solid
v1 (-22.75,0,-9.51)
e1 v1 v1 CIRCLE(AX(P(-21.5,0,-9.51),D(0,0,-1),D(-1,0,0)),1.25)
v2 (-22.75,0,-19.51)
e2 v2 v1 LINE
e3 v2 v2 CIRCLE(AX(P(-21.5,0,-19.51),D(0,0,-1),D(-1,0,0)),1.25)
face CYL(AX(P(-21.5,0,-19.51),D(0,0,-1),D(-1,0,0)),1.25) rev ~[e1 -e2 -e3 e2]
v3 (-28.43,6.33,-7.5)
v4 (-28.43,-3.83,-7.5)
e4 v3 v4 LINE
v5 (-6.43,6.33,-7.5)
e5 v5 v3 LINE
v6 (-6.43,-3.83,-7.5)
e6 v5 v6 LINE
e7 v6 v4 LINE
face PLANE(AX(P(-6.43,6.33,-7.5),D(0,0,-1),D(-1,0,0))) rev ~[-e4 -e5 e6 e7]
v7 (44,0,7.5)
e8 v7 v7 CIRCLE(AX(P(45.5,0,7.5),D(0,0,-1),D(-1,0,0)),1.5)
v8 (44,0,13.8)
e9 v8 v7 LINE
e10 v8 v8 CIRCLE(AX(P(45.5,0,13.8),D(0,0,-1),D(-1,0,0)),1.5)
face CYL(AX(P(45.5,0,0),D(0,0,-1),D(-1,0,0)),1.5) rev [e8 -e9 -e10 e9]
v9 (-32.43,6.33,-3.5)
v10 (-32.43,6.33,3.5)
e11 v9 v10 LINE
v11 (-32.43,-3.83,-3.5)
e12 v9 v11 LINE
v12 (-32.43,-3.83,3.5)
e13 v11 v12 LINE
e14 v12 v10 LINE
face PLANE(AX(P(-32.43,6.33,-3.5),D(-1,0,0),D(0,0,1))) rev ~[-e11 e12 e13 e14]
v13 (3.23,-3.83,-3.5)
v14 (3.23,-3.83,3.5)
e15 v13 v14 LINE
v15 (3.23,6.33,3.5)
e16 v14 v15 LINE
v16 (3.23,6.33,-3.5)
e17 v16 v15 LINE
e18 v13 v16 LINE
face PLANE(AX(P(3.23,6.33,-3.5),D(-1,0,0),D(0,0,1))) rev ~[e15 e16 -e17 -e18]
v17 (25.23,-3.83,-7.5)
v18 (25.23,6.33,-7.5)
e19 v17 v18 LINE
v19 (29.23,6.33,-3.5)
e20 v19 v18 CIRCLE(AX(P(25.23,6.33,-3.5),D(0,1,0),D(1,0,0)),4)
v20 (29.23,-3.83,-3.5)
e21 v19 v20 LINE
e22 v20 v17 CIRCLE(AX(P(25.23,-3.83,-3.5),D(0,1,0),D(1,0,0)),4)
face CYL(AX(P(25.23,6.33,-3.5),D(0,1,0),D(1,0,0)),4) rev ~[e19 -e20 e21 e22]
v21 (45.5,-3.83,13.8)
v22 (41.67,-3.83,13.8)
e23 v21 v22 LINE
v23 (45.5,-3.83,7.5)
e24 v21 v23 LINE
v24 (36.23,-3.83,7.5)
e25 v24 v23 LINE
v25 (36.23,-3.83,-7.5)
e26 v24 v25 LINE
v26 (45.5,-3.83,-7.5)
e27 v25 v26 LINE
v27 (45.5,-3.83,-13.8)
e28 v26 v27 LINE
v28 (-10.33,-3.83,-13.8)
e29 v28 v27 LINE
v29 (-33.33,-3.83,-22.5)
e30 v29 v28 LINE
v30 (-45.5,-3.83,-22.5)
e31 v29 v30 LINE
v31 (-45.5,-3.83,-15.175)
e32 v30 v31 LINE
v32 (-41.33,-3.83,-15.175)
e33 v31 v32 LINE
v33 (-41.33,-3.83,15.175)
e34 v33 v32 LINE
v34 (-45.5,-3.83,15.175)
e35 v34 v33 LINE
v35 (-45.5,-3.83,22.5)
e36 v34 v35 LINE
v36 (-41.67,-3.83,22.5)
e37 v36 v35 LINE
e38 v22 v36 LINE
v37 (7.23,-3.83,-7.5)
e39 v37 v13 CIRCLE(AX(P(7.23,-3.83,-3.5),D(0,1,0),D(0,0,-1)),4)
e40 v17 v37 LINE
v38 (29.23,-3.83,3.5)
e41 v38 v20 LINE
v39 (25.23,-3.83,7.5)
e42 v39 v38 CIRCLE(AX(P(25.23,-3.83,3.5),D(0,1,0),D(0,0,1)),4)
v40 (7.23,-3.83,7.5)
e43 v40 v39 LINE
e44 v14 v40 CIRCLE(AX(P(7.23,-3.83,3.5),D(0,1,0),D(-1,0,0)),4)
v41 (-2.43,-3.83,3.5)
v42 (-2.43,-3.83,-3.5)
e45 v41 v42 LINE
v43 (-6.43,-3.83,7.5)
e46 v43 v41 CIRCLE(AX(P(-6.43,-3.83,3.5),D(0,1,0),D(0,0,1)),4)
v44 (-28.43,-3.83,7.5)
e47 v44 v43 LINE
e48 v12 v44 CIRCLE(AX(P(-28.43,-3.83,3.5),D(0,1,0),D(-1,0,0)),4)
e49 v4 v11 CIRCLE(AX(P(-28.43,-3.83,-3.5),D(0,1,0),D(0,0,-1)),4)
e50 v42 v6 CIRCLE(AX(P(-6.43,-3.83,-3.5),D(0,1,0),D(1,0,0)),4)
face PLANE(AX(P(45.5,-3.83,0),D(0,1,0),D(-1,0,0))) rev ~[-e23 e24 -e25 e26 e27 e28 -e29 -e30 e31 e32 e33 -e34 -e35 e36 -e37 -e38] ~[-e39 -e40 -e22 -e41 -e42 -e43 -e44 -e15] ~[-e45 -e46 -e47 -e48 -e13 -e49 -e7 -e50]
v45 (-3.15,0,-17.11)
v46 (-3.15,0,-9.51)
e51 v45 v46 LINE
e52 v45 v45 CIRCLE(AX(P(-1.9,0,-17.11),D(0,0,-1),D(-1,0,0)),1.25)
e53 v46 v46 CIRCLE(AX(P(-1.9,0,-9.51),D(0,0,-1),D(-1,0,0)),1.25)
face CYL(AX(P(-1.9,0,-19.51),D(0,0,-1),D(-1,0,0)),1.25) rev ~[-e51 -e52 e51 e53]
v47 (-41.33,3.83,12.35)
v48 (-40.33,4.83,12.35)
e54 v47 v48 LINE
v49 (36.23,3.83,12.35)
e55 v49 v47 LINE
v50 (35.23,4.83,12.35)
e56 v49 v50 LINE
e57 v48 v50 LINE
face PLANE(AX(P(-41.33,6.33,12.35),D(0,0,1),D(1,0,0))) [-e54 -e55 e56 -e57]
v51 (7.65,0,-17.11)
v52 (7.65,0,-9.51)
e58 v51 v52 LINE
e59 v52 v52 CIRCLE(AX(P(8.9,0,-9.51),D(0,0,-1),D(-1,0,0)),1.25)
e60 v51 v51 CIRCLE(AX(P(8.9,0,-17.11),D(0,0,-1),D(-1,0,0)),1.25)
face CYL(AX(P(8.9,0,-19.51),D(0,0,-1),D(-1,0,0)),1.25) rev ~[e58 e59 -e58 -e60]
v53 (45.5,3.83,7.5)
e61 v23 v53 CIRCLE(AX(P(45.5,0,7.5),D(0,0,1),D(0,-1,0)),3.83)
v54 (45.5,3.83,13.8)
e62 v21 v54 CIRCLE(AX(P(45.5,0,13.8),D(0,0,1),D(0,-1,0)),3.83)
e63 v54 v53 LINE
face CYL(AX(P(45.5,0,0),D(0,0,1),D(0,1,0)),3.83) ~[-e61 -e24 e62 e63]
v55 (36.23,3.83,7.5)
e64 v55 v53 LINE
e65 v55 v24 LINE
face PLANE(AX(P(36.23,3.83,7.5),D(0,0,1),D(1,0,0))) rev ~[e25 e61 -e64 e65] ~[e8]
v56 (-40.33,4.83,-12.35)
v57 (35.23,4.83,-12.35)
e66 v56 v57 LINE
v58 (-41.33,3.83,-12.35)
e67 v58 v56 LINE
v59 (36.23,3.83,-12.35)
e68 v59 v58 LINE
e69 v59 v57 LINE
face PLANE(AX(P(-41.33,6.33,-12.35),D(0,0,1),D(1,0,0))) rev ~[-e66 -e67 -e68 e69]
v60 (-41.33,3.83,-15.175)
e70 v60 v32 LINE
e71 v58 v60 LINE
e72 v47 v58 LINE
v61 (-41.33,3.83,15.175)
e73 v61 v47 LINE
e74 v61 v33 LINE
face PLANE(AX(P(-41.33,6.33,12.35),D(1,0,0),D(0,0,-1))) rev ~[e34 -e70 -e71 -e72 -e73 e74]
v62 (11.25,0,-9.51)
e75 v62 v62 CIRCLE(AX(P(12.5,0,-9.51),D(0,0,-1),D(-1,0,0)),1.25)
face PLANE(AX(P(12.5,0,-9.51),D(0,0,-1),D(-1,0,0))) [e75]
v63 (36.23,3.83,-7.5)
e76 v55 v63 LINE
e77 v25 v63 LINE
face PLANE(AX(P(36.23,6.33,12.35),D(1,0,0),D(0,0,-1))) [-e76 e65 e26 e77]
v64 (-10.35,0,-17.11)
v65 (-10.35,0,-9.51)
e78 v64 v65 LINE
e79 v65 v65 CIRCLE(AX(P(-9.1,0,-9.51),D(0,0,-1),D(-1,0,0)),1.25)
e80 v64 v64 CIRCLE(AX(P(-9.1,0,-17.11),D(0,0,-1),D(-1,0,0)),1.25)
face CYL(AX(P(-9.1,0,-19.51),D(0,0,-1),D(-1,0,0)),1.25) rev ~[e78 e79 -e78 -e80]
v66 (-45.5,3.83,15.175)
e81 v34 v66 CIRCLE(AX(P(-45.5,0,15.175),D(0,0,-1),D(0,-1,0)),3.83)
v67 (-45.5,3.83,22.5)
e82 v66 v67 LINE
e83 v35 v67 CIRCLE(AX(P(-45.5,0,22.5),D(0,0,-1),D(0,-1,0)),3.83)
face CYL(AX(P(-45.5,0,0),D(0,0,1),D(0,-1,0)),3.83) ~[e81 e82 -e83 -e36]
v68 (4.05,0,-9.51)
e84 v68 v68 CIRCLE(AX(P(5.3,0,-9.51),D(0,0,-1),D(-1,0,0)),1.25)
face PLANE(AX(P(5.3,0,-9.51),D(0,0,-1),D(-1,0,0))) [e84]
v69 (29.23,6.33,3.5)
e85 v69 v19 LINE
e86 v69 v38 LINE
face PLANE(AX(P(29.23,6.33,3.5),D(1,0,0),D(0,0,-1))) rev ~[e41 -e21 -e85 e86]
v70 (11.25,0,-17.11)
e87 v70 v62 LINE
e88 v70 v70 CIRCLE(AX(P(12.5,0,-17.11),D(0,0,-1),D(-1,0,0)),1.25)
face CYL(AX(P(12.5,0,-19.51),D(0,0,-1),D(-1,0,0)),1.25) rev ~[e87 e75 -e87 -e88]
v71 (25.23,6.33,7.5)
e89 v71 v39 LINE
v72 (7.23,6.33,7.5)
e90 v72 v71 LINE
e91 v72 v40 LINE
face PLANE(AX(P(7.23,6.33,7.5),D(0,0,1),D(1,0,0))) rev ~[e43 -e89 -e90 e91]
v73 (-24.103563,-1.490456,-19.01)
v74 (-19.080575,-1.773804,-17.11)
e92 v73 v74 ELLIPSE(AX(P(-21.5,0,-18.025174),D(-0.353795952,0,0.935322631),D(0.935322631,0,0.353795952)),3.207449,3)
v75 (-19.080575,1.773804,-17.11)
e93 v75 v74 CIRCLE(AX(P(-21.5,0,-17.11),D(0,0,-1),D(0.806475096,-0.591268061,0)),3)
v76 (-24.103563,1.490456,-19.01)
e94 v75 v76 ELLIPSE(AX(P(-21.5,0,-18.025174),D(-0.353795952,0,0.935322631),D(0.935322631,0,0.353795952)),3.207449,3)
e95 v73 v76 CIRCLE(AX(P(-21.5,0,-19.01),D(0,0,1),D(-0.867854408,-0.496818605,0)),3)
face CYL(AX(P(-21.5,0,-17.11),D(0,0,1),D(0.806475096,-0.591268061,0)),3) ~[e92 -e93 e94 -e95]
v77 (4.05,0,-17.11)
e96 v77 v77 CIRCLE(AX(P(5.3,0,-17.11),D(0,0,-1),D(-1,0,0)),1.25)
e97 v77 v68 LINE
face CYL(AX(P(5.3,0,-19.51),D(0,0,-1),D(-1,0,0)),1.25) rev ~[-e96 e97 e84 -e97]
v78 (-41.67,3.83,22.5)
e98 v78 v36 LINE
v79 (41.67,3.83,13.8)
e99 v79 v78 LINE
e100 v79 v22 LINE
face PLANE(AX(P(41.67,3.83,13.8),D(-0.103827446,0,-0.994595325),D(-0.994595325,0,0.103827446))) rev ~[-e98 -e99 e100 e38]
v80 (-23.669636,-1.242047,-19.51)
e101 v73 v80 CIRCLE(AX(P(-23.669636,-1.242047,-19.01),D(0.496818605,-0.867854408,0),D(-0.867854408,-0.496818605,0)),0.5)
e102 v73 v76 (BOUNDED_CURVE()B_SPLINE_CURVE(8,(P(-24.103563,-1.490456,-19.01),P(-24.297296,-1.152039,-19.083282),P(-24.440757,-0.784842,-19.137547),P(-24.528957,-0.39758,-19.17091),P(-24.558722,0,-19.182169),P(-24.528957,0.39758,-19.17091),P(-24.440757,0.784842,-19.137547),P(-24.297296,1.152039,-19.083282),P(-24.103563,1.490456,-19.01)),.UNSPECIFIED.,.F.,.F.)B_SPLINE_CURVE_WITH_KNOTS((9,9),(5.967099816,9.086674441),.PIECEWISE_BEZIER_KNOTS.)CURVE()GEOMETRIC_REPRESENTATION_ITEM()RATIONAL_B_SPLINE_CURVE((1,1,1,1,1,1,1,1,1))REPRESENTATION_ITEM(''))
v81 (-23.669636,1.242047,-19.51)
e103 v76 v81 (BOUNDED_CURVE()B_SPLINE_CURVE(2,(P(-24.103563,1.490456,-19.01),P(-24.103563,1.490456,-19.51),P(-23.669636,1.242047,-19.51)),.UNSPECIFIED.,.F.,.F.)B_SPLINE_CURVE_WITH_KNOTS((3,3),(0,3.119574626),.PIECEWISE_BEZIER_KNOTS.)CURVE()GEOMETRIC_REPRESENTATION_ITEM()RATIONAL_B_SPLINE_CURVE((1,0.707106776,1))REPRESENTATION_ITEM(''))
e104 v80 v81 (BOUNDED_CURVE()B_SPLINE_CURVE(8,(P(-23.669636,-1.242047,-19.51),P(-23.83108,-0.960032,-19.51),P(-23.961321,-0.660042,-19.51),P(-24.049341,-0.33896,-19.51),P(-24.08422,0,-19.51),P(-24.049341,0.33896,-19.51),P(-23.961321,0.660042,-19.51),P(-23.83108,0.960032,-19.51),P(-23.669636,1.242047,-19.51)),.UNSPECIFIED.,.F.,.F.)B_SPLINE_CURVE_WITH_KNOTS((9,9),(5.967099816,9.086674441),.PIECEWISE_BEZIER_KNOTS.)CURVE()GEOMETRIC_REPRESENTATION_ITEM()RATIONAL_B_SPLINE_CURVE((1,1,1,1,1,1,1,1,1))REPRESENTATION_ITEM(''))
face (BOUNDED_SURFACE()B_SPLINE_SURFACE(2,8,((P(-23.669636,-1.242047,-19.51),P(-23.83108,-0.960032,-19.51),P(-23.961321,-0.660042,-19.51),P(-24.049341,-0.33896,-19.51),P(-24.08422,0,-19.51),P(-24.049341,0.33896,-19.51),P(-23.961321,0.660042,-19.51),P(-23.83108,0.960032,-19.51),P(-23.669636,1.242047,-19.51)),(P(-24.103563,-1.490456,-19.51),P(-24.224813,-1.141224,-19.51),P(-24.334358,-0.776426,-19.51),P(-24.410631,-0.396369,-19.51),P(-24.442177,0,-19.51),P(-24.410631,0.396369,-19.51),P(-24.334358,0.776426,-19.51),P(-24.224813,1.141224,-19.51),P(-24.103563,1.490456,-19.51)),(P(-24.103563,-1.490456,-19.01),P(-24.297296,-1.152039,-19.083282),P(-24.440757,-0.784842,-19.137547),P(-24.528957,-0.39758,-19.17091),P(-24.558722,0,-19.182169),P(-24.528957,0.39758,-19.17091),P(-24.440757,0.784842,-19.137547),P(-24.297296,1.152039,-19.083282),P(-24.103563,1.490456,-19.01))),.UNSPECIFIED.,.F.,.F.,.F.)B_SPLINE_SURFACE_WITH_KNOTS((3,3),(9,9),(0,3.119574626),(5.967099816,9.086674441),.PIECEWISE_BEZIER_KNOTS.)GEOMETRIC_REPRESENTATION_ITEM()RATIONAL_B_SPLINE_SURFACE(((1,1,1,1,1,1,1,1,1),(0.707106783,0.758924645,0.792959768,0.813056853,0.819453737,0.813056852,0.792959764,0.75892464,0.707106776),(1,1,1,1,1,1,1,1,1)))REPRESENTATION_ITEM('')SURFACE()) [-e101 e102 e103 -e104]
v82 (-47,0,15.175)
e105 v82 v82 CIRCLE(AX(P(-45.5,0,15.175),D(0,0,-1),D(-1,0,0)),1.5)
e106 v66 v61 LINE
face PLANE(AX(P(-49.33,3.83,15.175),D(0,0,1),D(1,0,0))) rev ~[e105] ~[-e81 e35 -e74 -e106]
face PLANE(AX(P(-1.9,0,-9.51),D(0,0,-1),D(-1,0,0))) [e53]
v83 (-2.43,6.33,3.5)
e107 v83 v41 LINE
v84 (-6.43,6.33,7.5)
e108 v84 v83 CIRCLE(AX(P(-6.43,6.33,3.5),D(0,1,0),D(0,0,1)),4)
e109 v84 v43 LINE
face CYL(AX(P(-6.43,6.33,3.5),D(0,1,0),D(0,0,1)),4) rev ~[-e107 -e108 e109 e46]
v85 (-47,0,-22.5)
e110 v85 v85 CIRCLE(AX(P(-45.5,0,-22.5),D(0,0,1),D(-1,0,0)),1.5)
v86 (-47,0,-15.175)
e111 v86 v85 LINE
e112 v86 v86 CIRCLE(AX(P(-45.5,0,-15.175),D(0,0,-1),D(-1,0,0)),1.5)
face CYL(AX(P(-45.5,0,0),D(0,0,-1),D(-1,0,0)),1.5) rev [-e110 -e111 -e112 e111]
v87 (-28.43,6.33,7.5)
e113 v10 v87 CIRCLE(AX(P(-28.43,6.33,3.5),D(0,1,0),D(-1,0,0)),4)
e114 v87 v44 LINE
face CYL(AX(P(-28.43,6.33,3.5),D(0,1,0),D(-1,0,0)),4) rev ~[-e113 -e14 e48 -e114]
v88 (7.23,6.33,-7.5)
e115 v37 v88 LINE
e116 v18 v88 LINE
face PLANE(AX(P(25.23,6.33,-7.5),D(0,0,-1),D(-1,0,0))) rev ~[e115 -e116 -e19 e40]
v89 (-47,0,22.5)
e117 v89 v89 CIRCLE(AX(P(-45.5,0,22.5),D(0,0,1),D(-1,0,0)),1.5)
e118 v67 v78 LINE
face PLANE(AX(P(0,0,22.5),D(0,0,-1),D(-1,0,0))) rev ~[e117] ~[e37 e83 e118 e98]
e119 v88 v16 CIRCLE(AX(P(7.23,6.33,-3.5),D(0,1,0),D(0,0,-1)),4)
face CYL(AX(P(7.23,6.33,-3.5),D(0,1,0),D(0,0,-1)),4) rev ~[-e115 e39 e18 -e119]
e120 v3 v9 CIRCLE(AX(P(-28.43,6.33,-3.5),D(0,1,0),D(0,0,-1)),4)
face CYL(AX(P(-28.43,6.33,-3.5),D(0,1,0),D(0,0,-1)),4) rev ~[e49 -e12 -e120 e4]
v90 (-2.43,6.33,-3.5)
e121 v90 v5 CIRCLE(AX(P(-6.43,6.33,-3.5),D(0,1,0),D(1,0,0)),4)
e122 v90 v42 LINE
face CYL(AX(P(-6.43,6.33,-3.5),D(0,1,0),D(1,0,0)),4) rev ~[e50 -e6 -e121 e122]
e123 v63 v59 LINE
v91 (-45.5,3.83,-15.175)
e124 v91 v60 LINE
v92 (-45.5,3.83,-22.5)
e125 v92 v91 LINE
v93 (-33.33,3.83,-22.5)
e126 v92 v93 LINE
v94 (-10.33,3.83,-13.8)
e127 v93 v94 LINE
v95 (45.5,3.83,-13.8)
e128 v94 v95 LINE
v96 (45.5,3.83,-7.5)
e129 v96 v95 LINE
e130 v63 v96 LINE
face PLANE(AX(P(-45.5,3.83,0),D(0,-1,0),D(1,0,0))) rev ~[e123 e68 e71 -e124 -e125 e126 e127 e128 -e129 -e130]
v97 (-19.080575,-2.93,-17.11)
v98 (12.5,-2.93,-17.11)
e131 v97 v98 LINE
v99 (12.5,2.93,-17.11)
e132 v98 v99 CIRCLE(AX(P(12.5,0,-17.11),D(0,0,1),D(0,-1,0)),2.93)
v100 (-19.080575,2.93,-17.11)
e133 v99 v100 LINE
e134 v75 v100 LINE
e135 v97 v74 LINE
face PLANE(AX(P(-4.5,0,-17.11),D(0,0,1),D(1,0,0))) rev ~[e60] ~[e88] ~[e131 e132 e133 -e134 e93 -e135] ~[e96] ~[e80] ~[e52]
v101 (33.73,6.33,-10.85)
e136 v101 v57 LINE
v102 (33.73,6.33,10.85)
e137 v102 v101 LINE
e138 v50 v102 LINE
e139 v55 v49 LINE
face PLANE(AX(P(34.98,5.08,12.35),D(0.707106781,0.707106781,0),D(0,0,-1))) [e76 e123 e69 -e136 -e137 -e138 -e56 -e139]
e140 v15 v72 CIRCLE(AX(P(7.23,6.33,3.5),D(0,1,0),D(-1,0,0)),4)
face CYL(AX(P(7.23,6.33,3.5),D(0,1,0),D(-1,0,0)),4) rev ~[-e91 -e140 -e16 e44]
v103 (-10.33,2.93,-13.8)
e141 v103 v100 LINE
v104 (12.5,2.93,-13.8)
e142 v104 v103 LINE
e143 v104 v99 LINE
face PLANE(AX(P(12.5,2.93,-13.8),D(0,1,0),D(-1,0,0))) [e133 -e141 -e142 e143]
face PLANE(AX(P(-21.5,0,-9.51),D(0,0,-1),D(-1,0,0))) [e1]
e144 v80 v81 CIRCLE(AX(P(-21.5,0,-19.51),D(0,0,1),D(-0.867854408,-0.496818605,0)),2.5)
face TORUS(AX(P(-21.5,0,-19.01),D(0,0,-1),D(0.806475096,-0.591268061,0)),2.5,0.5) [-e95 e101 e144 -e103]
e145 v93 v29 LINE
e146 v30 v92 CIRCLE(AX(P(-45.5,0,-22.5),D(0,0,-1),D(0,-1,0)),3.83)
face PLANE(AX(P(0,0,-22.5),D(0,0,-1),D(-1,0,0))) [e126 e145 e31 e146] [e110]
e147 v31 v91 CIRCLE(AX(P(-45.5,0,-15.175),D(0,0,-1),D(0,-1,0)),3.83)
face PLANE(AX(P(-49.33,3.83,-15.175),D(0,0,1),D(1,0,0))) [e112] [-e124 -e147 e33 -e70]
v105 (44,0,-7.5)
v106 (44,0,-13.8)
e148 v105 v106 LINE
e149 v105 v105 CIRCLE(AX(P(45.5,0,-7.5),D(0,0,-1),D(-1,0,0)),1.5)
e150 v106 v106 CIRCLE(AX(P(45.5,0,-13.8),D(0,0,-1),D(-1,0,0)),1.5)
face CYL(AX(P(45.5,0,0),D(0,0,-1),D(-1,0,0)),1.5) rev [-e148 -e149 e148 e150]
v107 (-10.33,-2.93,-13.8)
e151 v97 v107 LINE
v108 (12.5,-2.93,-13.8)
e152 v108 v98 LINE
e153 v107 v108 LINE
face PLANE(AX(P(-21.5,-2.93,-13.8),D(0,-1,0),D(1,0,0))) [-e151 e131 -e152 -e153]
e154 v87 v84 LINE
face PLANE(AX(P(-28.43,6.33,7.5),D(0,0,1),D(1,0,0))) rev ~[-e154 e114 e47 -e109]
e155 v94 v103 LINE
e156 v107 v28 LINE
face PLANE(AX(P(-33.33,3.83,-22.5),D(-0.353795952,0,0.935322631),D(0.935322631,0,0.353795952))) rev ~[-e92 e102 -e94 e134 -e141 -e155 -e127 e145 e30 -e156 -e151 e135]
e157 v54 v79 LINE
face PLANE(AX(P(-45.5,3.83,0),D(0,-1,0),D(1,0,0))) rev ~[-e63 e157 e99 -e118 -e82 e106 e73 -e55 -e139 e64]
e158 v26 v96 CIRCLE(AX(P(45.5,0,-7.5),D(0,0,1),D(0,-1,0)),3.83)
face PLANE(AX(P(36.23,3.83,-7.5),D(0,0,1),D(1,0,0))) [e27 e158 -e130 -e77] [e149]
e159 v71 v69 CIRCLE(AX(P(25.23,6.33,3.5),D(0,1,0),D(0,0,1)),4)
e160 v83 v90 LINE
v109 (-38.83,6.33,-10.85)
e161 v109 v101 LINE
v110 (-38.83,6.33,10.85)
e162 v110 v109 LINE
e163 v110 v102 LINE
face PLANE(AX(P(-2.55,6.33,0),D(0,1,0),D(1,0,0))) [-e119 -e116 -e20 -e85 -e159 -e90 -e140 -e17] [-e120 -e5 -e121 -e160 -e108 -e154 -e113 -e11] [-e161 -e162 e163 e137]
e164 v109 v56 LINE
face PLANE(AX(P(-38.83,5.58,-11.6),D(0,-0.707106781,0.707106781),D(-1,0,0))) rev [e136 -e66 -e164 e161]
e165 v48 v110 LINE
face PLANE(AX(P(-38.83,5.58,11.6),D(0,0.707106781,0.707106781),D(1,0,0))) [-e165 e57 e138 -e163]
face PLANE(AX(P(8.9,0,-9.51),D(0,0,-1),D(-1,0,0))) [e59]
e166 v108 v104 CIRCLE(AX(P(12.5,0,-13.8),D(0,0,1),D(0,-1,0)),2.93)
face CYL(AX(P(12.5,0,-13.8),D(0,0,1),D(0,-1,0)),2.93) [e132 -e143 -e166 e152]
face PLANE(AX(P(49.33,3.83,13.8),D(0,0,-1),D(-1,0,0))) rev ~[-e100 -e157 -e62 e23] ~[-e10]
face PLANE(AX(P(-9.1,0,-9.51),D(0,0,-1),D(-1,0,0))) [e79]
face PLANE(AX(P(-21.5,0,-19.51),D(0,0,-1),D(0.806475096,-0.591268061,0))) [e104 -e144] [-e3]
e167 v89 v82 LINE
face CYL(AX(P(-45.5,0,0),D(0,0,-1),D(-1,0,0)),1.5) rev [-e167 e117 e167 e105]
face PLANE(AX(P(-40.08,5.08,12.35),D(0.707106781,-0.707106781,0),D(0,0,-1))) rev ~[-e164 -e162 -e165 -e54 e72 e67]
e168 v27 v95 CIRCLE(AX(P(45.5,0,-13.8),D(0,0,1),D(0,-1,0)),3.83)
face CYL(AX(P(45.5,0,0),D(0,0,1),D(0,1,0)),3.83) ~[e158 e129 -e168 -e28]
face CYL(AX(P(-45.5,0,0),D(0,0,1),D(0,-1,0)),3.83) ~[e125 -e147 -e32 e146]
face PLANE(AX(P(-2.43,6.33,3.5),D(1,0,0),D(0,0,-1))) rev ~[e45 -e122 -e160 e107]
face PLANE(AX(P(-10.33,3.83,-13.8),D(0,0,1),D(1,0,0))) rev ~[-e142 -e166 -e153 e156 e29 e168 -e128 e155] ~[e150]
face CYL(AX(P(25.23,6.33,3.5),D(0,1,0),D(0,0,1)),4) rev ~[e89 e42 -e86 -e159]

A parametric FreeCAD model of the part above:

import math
import FreeCAD as App
import Part
import Sketcher
from FreeCAD import Vector
Q = App.Units.Quantity


def edges_at(feature, points):
    """Names of the edges that pass closest to the given points."""
    edges = feature.Shape.Edges
    near = lambda p: min(range(len(edges)), key=lambda i: edges[i].distToShape(Part.Vertex(*p))[0])
    return sorted({f"Edge{near(p) + 1}" for p in points})


def add_polygon(sketch, points):
    """Adds a closed chain of lines whose ends are joined by coincident constraints."""
    first, n = sketch.GeometryCount, len(points)
    for a, b in zip(points, points[1:] + points[:1]):
        sketch.addGeometry(Part.LineSegment(App.Vector(*a, 0), App.Vector(*b, 0)), False)
    for i in range(n):
        sketch.addConstraint(Sketcher.Constraint("Coincident", first + i, 2, first + (i + 1) % n, 1))

doc = App.newDocument("Part")
params = doc.addObject("Spreadsheet::Sheet", "Params")
for row, (alias, value) in enumerate([
    ("sketch1_diameter", "3 mm"),
    ("sketch1_width", "91 mm"),
    ("sketch1_radius", "3.83 mm"),
    ("pad1_length", "45 mm"),
    ("sketch2_radius", "4 mm"),
    ("sketch2_width", "91 mm"),
    ("sketch2_width2", "22 mm"),
    ("sketch2_width3", "18 mm"),
    ("sketch2_width4", "8 mm"),
    ("sketch3_radius", "4 mm"),
    ("sketch3_width", "22 mm"),
    ("sketch3_width2", "18 mm"),
    ("sketch3_height", "7 mm"),
    ("sketch3_height2", "24.7 mm"),
    ("pad2_length", "6.33 mm"),
    ("chamfer_size", "2.5 mm"),
    ("chamfer2_size", "1.5 mm"),
    ("sketch4_width", "34 mm"),
    ("sketch4_radius", "2.93 mm"),
    ("pad3_length", "3.31 mm"),
    ("sketch5_diameter", "6 mm"),
    ("pad4_length", "2.4 mm"),
    ("fillet_radius", "0.5 mm"),
    ("sketch6_diameter", "2.5 mm"),
    ("pocket2_length", "10 mm"),
], start=1):
    params.set(f"A{row}", alias)
    params.set(f"B{row}", "=" + value)
    params.setAlias(f"B{row}", alias)

body = doc.addObject("PartDesign::Body", "Body")

# Sketch on XY plane
sketch1 = doc.addObject("Sketcher::SketchObject", "Sketch")
body.addObject(sketch1)
sketch1.AttachmentSupport = (doc.XY_Plane, [""])
sketch1.MapMode = "FlatFace"
sketch1.addGeometry([
    Part.LineSegment(Vector(45.5, 3.8, 0), Vector(-45.5, 3.8, 0)),  # 0
    Part.ArcOfCircle(Part.Circle(Vector(-45.5, 0, 0), Vector(0, 0, 1), 3.8), math.radians(90), math.radians(270)),  # 1
    Part.LineSegment(Vector(-45.5, -3.8, 0), Vector(45.5, -3.8, 0)),  # 2
    Part.ArcOfCircle(Part.Circle(Vector(45.5, 0, 0), Vector(0, 0, 1), 3.8), math.radians(-90), math.radians(90)),  # 3
    Part.Circle(Vector(45.5, 0, 0), Vector(0, 0, 1), 1.5),  # 4
    Part.Circle(Vector(-45.5, 0, 0), Vector(0, 0, 1), 1.5),  # 5
], False)
sketch1.addConstraint([
    Sketcher.Constraint("Tangent", 0, 2, 1, 1),
    Sketcher.Constraint("Tangent", 1, 2, 2, 1),
    Sketcher.Constraint("Tangent", 2, 2, 3, 1),
    Sketcher.Constraint("Tangent", 3, 2, 0, 1),
    Sketcher.Constraint("Horizontal", 0),
    Sketcher.Constraint("Horizontal", 2),
    Sketcher.Constraint("Coincident", 4, 3, 3, 3),
    Sketcher.Constraint("Coincident", 5, 3, 1, 3),
    Sketcher.Constraint("Equal", 4, 5),
    Sketcher.Constraint("Symmetric", 1, 3, 3, 3, -1, 1),
    Sketcher.Constraint("Diameter", 4, Q("3 mm")),
    Sketcher.Constraint("DistanceX", 0, 2, 0, 1, Q("91 mm")),
    Sketcher.Constraint("Radius", 1, Q("3.83 mm")),
])
sketch1.setExpression("Constraints[10]", "Params.sketch1_diameter")
sketch1.setExpression("Constraints[11]", "Params.sketch1_width")
sketch1.setExpression("Constraints[12]", "Params.sketch1_radius")
pad1 = doc.addObject("PartDesign::Pad", "Pad")
body.addObject(pad1)
pad1.Profile = sketch1
pad1.setExpression("Length", "Params.pad1_length")
pad1.Midplane = True

# Sketch on XZ plane
sketch2 = doc.addObject("Sketcher::SketchObject", "Sketch001")
body.addObject(sketch2)
sketch2.AttachmentSupport = (doc.XZ_Plane, [""])
sketch2.MapMode = "FlatFace"
sketch2.AttachmentOffset = App.Placement(Vector(0, 0, -3.83), App.Rotation())
add_polygon(sketch2, [(-10.3, -13.8), (49.3, -13.8), (49.3, -22.5), (-33.3, -22.5)])  # lines 0-3
add_polygon(sketch2, [(41.7, 13.8), (-41.7, 22.5), (49.3, 22.5), (49.3, 13.8)])  # lines 4-7
sketch2.addGeometry(Part.LineSegment(Vector(-6.4, -7.5, 0), Vector(-28.4, -7.5, 0)), False)  # 8
sketch2.addGeometry(Part.ArcOfCircle(Part.Circle(Vector(-28.4, -3.5, 0), Vector(0, 0, 1), 4), math.radians(180), math.radians(270)), False)  # 9
sketch2.addGeometry(Part.LineSegment(Vector(-32.4, -3.5, 0), Vector(-32.4, 3.5, 0)), False)  # 10
sketch2.addGeometry(Part.ArcOfCircle(Part.Circle(Vector(-28.4, 3.5, 0), Vector(0, 0, 1), 4), math.radians(90), math.radians(180)), False)  # 11
sketch2.addGeometry(Part.LineSegment(Vector(-28.4, 7.5, 0), Vector(-6.4, 7.5, 0)), False)  # 12
sketch2.addGeometry(Part.ArcOfCircle(Part.Circle(Vector(-6.4, 3.5, 0), Vector(0, 0, 1), 4), math.radians(0), math.radians(90)), False)  # 13
sketch2.addGeometry(Part.LineSegment(Vector(-2.4, 3.5, 0), Vector(-2.4, -3.5, 0)), False)  # 14
sketch2.addGeometry(Part.ArcOfCircle(Part.Circle(Vector(-6.4, -3.5, 0), Vector(0, 0, 1), 4), math.radians(-90), math.radians(0)), False)  # 15
sketch2.addGeometry(Part.LineSegment(Vector(25.2, -7.5, 0), Vector(7.2, -7.5, 0)), False)  # 16
sketch2.addGeometry(Part.ArcOfCircle(Part.Circle(Vector(7.2, -3.5, 0), Vector(0, 0, 1), 4), math.radians(180), math.radians(270)), False)  # 17
sketch2.addGeometry(Part.LineSegment(Vector(3.2, -3.5, 0), Vector(3.2, 3.5, 0)), False)  # 18
sketch2.addGeometry(Part.ArcOfCircle(Part.Circle(Vector(7.2, 3.5, 0), Vector(0, 0, 1), 4), math.radians(90), math.radians(180)), False)  # 19
sketch2.addGeometry(Part.LineSegment(Vector(7.2, 7.5, 0), Vector(25.2, 7.5, 0)), False)  # 20
sketch2.addGeometry(Part.ArcOfCircle(Part.Circle(Vector(25.2, 3.5, 0), Vector(0, 0, 1), 4), math.radians(0), math.radians(90)), False)  # 21
sketch2.addGeometry(Part.LineSegment(Vector(29.2, 3.5, 0), Vector(29.2, -3.5, 0)), False)  # 22
sketch2.addGeometry(Part.ArcOfCircle(Part.Circle(Vector(25.2, -3.5, 0), Vector(0, 0, 1), 4), math.radians(-90), math.radians(0)), False)  # 23
add_polygon(sketch2, [(-49.3, -15.2), (-49.3, 15.2), (-41.3, 15.2), (-41.3, -15.2)])  # lines 24-27
add_polygon(sketch2, [(36.2, -7.5), (36.2, 7.5), (49.3, 7.5), (49.3, -7.5)])  # lines 28-31
sketch2.addConstraint([
    Sketcher.Constraint("Tangent", 8, 2, 9, 2),
    Sketcher.Constraint("Tangent", 9, 1, 10, 1),
    Sketcher.Constraint("Tangent", 10, 2, 11, 2),
    Sketcher.Constraint("Tangent", 11, 1, 12, 1),
    Sketcher.Constraint("Tangent", 12, 2, 13, 2),
    Sketcher.Constraint("Tangent", 13, 1, 14, 1),
    Sketcher.Constraint("Tangent", 14, 2, 15, 2),
    Sketcher.Constraint("Tangent", 15, 1, 8, 1),
    Sketcher.Constraint("Tangent", 16, 2, 17, 2),
    Sketcher.Constraint("Tangent", 17, 1, 18, 1),
    Sketcher.Constraint("Tangent", 18, 2, 19, 2),
    Sketcher.Constraint("Tangent", 19, 1, 20, 1),
    Sketcher.Constraint("Tangent", 20, 2, 21, 2),
    Sketcher.Constraint("Tangent", 21, 1, 22, 1),
    Sketcher.Constraint("Tangent", 22, 2, 23, 2),
    Sketcher.Constraint("Tangent", 23, 1, 16, 1),
    Sketcher.Constraint("Horizontal", 0),
    Sketcher.Constraint("Vertical", 1),
    Sketcher.Constraint("Horizontal", 2),
    Sketcher.Constraint("Horizontal", 5),
    Sketcher.Constraint("Vertical", 6),
    Sketcher.Constraint("Horizontal", 7),
    Sketcher.Constraint("Horizontal", 8),
    Sketcher.Constraint("Vertical", 10),
    Sketcher.Constraint("Horizontal", 12),
    Sketcher.Constraint("Vertical", 14),
    Sketcher.Constraint("Horizontal", 16),
    Sketcher.Constraint("Vertical", 18),
    Sketcher.Constraint("Horizontal", 20),
    Sketcher.Constraint("Vertical", 22),
    Sketcher.Constraint("Vertical", 24),
    Sketcher.Constraint("Horizontal", 25),
    Sketcher.Constraint("Vertical", 26),
    Sketcher.Constraint("Horizontal", 27),
    Sketcher.Constraint("Vertical", 28),
    Sketcher.Constraint("Horizontal", 29),
    Sketcher.Constraint("Vertical", 30),
    Sketcher.Constraint("Horizontal", 31),
    Sketcher.Constraint("Equal", 9, 11),
    Sketcher.Constraint("Equal", 11, 13),
    Sketcher.Constraint("Equal", 13, 15),
    Sketcher.Constraint("Equal", 15, 17),
    Sketcher.Constraint("Equal", 17, 19),
    Sketcher.Constraint("Equal", 19, 21),
    Sketcher.Constraint("Equal", 21, 23),
    Sketcher.Constraint("Symmetric", 1, 2, 5, 2, -1),
    Sketcher.Constraint("Horizontal", 15, 3, 17, 3),
    Sketcher.Constraint("Horizontal", 13, 3, 19, 3),
    Sketcher.Constraint("Horizontal", 20, 2, 28, 2),
    Sketcher.Constraint("Horizontal", 23, 1, 30, 2),
    Sketcher.Constraint("Vertical", 6, 2, 29, 2),
    Sketcher.Constraint("Equal", 1, 6),
    Sketcher.Constraint("Radius", 9, Q("4 mm")),
    Sketcher.Constraint("DistanceX", 5, 1, 5, 2, Q("91 mm")),
    Sketcher.Constraint("DistanceX", 8, 2, 8, 1, Q("22 mm")),
    Sketcher.Constraint("DistanceX", 16, 2, 16, 1, Q("18 mm")),
    Sketcher.Constraint("DistanceX", 25, 1, 25, 2, Q("8 mm")),
    Sketcher.Constraint("DistanceY", 10, 1, 10, 2, Q("7 mm")),
    Sketcher.Constraint("DistanceX", 29, 1, 29, 2, Q("13.1 mm")),
    Sketcher.Constraint("DistanceY", 1, 2, 1, 1, Q("8.7 mm")),
    Sketcher.Constraint("DistanceY", 1, 2, 23, 3, Q("19 mm")),
    Sketcher.Constraint("DistanceX", 2, 2, 3, 2, Q("23 mm")),
    Sketcher.Constraint("DistanceY", 11, 3, 4, 2, Q("19 mm")),
    Sketcher.Constraint("DistanceX", 26, 2, 2, 2, Q("8 mm")),
    Sketcher.Constraint("DistanceX", 21, 1, 28, 2, Q("7 mm")),
    Sketcher.Constraint("DistanceX", 0, 1, 0, 2, Q("59.66 mm")),
    Sketcher.Constraint("DistanceX", 7, 2, 7, 1, Q("7.66 mm")),
    Sketcher.Constraint("DistanceY", 24, 1, 24, 2, Q("30.35 mm")),
    Sketcher.Constraint("DistanceX", 2, 2, 9, 3, Q("4.9 mm")),
    Sketcher.Constraint("DistanceX", 9, 3, -1, 1, Q("28.43 mm")),
    Sketcher.Constraint("DistanceY", -1, 1, 24, 2, Q("15.175 mm")),
])
sketch2.setExpression("Constraints[68]", "Params.sketch2_radius")
sketch2.setExpression("Constraints[69]", "Params.sketch2_width")
sketch2.setExpression("Constraints[70]", "Params.sketch2_width2")
sketch2.setExpression("Constraints[71]", "Params.sketch2_width3")
sketch2.setExpression("Constraints[72]", "Params.sketch2_width4")
pocket1 = doc.addObject("PartDesign::Pocket", "Pocket")
body.addObject(pocket1)
pocket1.Profile = sketch2
pocket1.Type = "ThroughAll"
pocket1.Reversed = True

# Sketch on XZ plane
sketch3 = doc.addObject("Sketcher::SketchObject", "Sketch002")
body.addObject(sketch3)
sketch3.AttachmentSupport = (doc.XZ_Plane, [""])
sketch3.MapMode = "FlatFace"
sketch3.AttachmentOffset = App.Placement(Vector(0, 0, -6.33), App.Rotation())
add_polygon(sketch3, [(-41.3, -12.3), (-41.3, 12.3), (36.2, 12.3), (36.2, -12.3)])  # lines 0-3
sketch3.addGeometry(Part.ArcOfCircle(Part.Circle(Vector(-28.4, 3.5, 0), Vector(0, 0, 1), 4), math.radians(90), math.radians(180)), False)  # 4
sketch3.addGeometry(Part.LineSegment(Vector(-32.4, 3.5, 0), Vector(-32.4, -3.5, 0)), False)  # 5
sketch3.addGeometry(Part.ArcOfCircle(Part.Circle(Vector(-28.4, -3.5, 0), Vector(0, 0, 1), 4), math.radians(180), math.radians(270)), False)  # 6
sketch3.addGeometry(Part.LineSegment(Vector(-28.4, -7.5, 0), Vector(-6.4, -7.5, 0)), False)  # 7
sketch3.addGeometry(Part.ArcOfCircle(Part.Circle(Vector(-6.4, -3.5, 0), Vector(0, 0, 1), 4), math.radians(-90), math.radians(0)), False)  # 8
sketch3.addGeometry(Part.LineSegment(Vector(-2.4, -3.5, 0), Vector(-2.4, 3.5, 0)), False)  # 9
sketch3.addGeometry(Part.ArcOfCircle(Part.Circle(Vector(-6.4, 3.5, 0), Vector(0, 0, 1), 4), math.radians(0), math.radians(90)), False)  # 10
sketch3.addGeometry(Part.LineSegment(Vector(-6.4, 7.5, 0), Vector(-28.4, 7.5, 0)), False)  # 11
sketch3.addGeometry(Part.ArcOfCircle(Part.Circle(Vector(7.2, 3.5, 0), Vector(0, 0, 1), 4), math.radians(90), math.radians(180)), False)  # 12
sketch3.addGeometry(Part.LineSegment(Vector(3.2, 3.5, 0), Vector(3.2, -3.5, 0)), False)  # 13
sketch3.addGeometry(Part.ArcOfCircle(Part.Circle(Vector(7.2, -3.5, 0), Vector(0, 0, 1), 4), math.radians(180), math.radians(270)), False)  # 14
sketch3.addGeometry(Part.LineSegment(Vector(7.2, -7.5, 0), Vector(25.2, -7.5, 0)), False)  # 15
sketch3.addGeometry(Part.ArcOfCircle(Part.Circle(Vector(25.2, -3.5, 0), Vector(0, 0, 1), 4), math.radians(-90), math.radians(0)), False)  # 16
sketch3.addGeometry(Part.LineSegment(Vector(29.2, -3.5, 0), Vector(29.2, 3.5, 0)), False)  # 17
sketch3.addGeometry(Part.ArcOfCircle(Part.Circle(Vector(25.2, 3.5, 0), Vector(0, 0, 1), 4), math.radians(0), math.radians(90)), False)  # 18
sketch3.addGeometry(Part.LineSegment(Vector(25.2, 7.5, 0), Vector(7.2, 7.5, 0)), False)  # 19
sketch3.addConstraint([
    Sketcher.Constraint("Tangent", 4, 2, 5, 1),
    Sketcher.Constraint("Tangent", 5, 2, 6, 1),
    Sketcher.Constraint("Tangent", 6, 2, 7, 1),
    Sketcher.Constraint("Tangent", 7, 2, 8, 1),
    Sketcher.Constraint("Tangent", 8, 2, 9, 1),
    Sketcher.Constraint("Tangent", 9, 2, 10, 1),
    Sketcher.Constraint("Tangent", 10, 2, 11, 1),
    Sketcher.Constraint("Tangent", 11, 2, 4, 1),
    Sketcher.Constraint("Tangent", 12, 2, 13, 1),
    Sketcher.Constraint("Tangent", 13, 2, 14, 1),
    Sketcher.Constraint("Tangent", 14, 2, 15, 1),
    Sketcher.Constraint("Tangent", 15, 2, 16, 1),
    Sketcher.Constraint("Tangent", 16, 2, 17, 1),
    Sketcher.Constraint("Tangent", 17, 2, 18, 1),
    Sketcher.Constraint("Tangent", 18, 2, 19, 1),
    Sketcher.Constraint("Tangent", 19, 2, 12, 1),
    Sketcher.Constraint("Vertical", 0),
    Sketcher.Constraint("Horizontal", 1),
    Sketcher.Constraint("Vertical", 2),
    Sketcher.Constraint("Horizontal", 3),
    Sketcher.Constraint("Vertical", 5),
    Sketcher.Constraint("Horizontal", 7),
    Sketcher.Constraint("Vertical", 9),
    Sketcher.Constraint("Horizontal", 11),
    Sketcher.Constraint("Vertical", 13),
    Sketcher.Constraint("Horizontal", 15),
    Sketcher.Constraint("Vertical", 17),
    Sketcher.Constraint("Horizontal", 19),
    Sketcher.Constraint("Equal", 4, 6),
    Sketcher.Constraint("Equal", 6, 8),
    Sketcher.Constraint("Equal", 8, 10),
    Sketcher.Constraint("Equal", 10, 12),
    Sketcher.Constraint("Equal", 12, 14),
    Sketcher.Constraint("Equal", 14, 16),
    Sketcher.Constraint("Equal", 16, 18),
    Sketcher.Constraint("Horizontal", 10, 3, 12, 3),
    Sketcher.Constraint("Horizontal", 8, 3, 14, 3),
    Sketcher.Constraint("Radius", 4, Q("4 mm")),
    Sketcher.Constraint("DistanceX", 7, 1, 7, 2, Q("22 mm")),
    Sketcher.Constraint("DistanceX", 15, 1, 15, 2, Q("18 mm")),
    Sketcher.Constraint("DistanceY", 5, 2, 5, 1, Q("7 mm")),
    Sketcher.Constraint("DistanceY", 0, 1, 0, 2, Q("24.7 mm")),
    Sketcher.Constraint("DistanceX", 18, 3, 1, 2, Q("11 mm")),
    Sketcher.Constraint("DistanceX", 1, 1, 1, 2, Q("77.56 mm")),
    Sketcher.Constraint("DistanceY", -1, 1, 4, 3, Q("3.5 mm")),
    Sketcher.Constraint("DistanceX", 0, 2, 4, 3, Q("12.9 mm")),
    Sketcher.Constraint("DistanceX", 4, 3, -1, 1, Q("28.43 mm")),
    Sketcher.Constraint("DistanceY", -1, 1, 0, 2, Q("12.35 mm")),
])
sketch3.setExpression("Constraints[41]", "Params.sketch3_radius")
sketch3.setExpression("Constraints[42]", "Params.sketch3_width")
sketch3.setExpression("Constraints[43]", "Params.sketch3_width2")
sketch3.setExpression("Constraints[44]", "Params.sketch3_height")
sketch3.setExpression("Constraints[45]", "Params.sketch3_height2")
pad2 = doc.addObject("PartDesign::Pad", "Pad001")
body.addObject(pad2)
pad2.Profile = sketch3
pad2.setExpression("Length", "Params.pad2_length")
doc.recompute()

chamfer = doc.addObject("PartDesign::Chamfer", "Chamfer")
body.addObject(chamfer)
chamfer.Base = (pad2, edges_at(pad2, [(36.23, 6.33, 0), (-41.33, 6.33, 0)]))
chamfer.setExpression("Size", "Params.chamfer_size")
doc.recompute()

chamfer2 = doc.addObject("PartDesign::Chamfer", "Chamfer001")
body.addObject(chamfer2)
chamfer2.Base = (chamfer, edges_at(chamfer, [(-2.55, 6.33, 12.35), (-2.55, 6.33, -12.35)]))
chamfer2.setExpression("Size", "Params.chamfer2_size")

# Sketch on XY plane
sketch4 = doc.addObject("Sketcher::SketchObject", "Sketch003")
body.addObject(sketch4)
sketch4.AttachmentSupport = (doc.XY_Plane, [""])
sketch4.MapMode = "FlatFace"
sketch4.AttachmentOffset = App.Placement(Vector(0, 0, -13.8), App.Rotation())
sketch4.addGeometry([
    Part.LineSegment(Vector(12.5, -2.9, 0), Vector(-21.5, -2.9, 0)),
    Part.ArcOfCircle(Part.Circle(Vector(-21.5, 0, 0), Vector(0, 0, 1), 2.9), math.radians(90), math.radians(270)),
    Part.LineSegment(Vector(-21.5, 2.9, 0), Vector(12.5, 2.9, 0)),
    Part.ArcOfCircle(Part.Circle(Vector(12.5, 0, 0), Vector(0, 0, 1), 2.9), math.radians(-90), math.radians(90)),
], False)
sketch4.addConstraint([
    Sketcher.Constraint("Tangent", 0, 2, 1, 2),
    Sketcher.Constraint("Tangent", 1, 1, 2, 1),
    Sketcher.Constraint("Tangent", 2, 2, 3, 2),
    Sketcher.Constraint("Tangent", 3, 1, 0, 1),
    Sketcher.Constraint("Horizontal", 0),
    Sketcher.Constraint("Horizontal", 2),
    Sketcher.Constraint("PointOnObject", 1, 3, -1),
    Sketcher.Constraint("DistanceX", 0, 2, 0, 1, Q("34 mm")),
    Sketcher.Constraint("Radius", 1, Q("2.93 mm")),
    Sketcher.Constraint("DistanceX", 1, 3, -1, 1, Q("21.5 mm")),
])
sketch4.setExpression("Constraints[7]", "Params.sketch4_width")
sketch4.setExpression("Constraints[8]", "Params.sketch4_radius")
pad3 = doc.addObject("PartDesign::Pad", "Pad002")
body.addObject(pad3)
pad3.Profile = sketch4
pad3.setExpression("Length", "Params.pad3_length")
pad3.Reversed = True

# Sketch on XY plane
sketch5 = doc.addObject("Sketcher::SketchObject", "Sketch004")
body.addObject(sketch5)
sketch5.AttachmentSupport = (doc.XY_Plane, [""])
sketch5.MapMode = "FlatFace"
sketch5.AttachmentOffset = App.Placement(Vector(0, 0, -17.11), App.Rotation())
sketch5.addGeometry(Part.Circle(Vector(-21.5, 0, 0), Vector(0, 0, 1), 3), False)
sketch5.addConstraint([
    Sketcher.Constraint("PointOnObject", 0, 3, -1),
    Sketcher.Constraint("Diameter", 0, Q("6 mm")),
    Sketcher.Constraint("DistanceX", 0, 3, -1, 1, Q("21.5 mm")),
])
sketch5.setExpression("Constraints[1]", "Params.sketch5_diameter")
pad4 = doc.addObject("PartDesign::Pad", "Pad003")
body.addObject(pad4)
pad4.Profile = sketch5
pad4.setExpression("Length", "Params.pad4_length")
pad4.Reversed = True
doc.recompute()

fillet = doc.addObject("PartDesign::Fillet", "Fillet")
body.addObject(fillet)
fillet.Base = (pad4, edges_at(pad4, [(-23.919, 1.774, -19.51)]))
fillet.setExpression("Radius", "Params.fillet_radius")

# Sketch on XY plane
sketch6 = doc.addObject("Sketcher::SketchObject", "Sketch005")
body.addObject(sketch6)
sketch6.AttachmentSupport = (doc.XY_Plane, [""])
sketch6.MapMode = "FlatFace"
sketch6.AttachmentOffset = App.Placement(Vector(0, 0, -19.51), App.Rotation())
sketch6.addGeometry([
    Part.Circle(Vector(-21.5, 0, 0), Vector(0, 0, 1), 1.2),  # 0
    Part.Circle(Vector(-9.1, 0, 0), Vector(0, 0, 1), 1.2),  # 1
    Part.Circle(Vector(-1.9, 0, 0), Vector(0, 0, 1), 1.2),  # 2
    Part.Circle(Vector(5.3, 0, 0), Vector(0, 0, 1), 1.2),  # 3
    Part.Circle(Vector(12.5, 0, 0), Vector(0, 0, 1), 1.2),  # 4
    Part.Circle(Vector(8.9, 0, 0), Vector(0, 0, 1), 1.2),  # 5
], False)
sketch6.addConstraint([
    Sketcher.Constraint("Equal", 0, 1),
    Sketcher.Constraint("Equal", 1, 2),
    Sketcher.Constraint("Equal", 2, 3),
    Sketcher.Constraint("Equal", 3, 4),
    Sketcher.Constraint("Equal", 4, 5),
    Sketcher.Constraint("PointOnObject", 0, 3, -1),
    Sketcher.Constraint("PointOnObject", 1, 3, -1),
    Sketcher.Constraint("PointOnObject", 2, 3, -1),
    Sketcher.Constraint("PointOnObject", 3, 3, -1),
    Sketcher.Constraint("PointOnObject", 4, 3, -1),
    Sketcher.Constraint("PointOnObject", 5, 3, -1),
    Sketcher.Constraint("Diameter", 0, Q("2.5 mm")),
    Sketcher.Constraint("DistanceX", 0, 3, 4, 3, Q("34 mm")),
    Sketcher.Constraint("DistanceX", 1, 3, 5, 3, Q("18 mm")),
    Sketcher.Constraint("DistanceX", 0, 3, -1, 1, Q("21.5 mm")),
    Sketcher.Constraint("DistanceX", 1, 3, -1, 1, Q("9.1 mm")),
    Sketcher.Constraint("DistanceX", 2, 3, -1, 1, Q("1.9 mm")),
    Sketcher.Constraint("DistanceX", -1, 1, 3, 3, Q("5.3 mm")),
])
sketch6.setExpression("Constraints[11]", "Params.sketch6_diameter")
pocket2 = doc.addObject("PartDesign::Pocket", "Pocket001")
body.addObject(pocket2)
pocket2.Profile = sketch6
pocket2.setExpression("Length", "Params.pocket2_length")
pocket2.Reversed = True

doc.recompute()
